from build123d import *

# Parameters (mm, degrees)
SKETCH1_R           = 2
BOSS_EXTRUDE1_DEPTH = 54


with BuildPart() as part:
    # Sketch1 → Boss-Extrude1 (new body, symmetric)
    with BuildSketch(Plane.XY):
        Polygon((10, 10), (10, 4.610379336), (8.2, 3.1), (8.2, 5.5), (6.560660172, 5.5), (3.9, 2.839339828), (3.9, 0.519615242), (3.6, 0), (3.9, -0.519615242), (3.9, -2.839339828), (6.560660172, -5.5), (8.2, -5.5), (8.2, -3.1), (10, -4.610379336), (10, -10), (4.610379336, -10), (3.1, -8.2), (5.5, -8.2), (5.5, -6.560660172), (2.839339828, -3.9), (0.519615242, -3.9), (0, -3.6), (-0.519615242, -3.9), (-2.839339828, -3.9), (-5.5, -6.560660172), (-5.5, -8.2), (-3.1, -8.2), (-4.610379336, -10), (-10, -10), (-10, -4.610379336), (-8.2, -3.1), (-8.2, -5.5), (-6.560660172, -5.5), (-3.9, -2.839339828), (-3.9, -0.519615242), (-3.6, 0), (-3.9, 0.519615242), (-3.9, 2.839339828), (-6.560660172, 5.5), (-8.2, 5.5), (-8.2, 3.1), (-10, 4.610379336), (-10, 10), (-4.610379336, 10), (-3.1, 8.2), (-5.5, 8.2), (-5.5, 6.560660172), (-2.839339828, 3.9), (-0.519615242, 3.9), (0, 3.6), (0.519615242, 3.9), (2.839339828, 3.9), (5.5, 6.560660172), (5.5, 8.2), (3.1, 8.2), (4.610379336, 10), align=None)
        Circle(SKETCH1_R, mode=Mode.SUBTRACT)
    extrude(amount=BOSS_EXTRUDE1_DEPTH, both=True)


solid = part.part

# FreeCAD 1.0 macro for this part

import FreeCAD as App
import Part
import Sketcher
from FreeCAD import Vector
Q = App.Units.Quantity

doc = App.newDocument("Part")
params = doc.addObject("Spreadsheet::Sheet", "Params")
for row, (alias, value) in enumerate([
    ("sketch1_diameter", "4 mm"),
    ("sketch1_width", "2.4 mm"),
    ("sketch1_length", "0.6 mm"),
    ("pad1_length", "108 mm"),
], start=1):
    params.set(f"A{row}", alias)
    params.set(f"B{row}", "=" + value)
    params.setAlias(f"B{row}", alias)

body = doc.addObject("PartDesign::Body", "Body")

sketch1 = doc.addObject("Sketcher::SketchObject", "Sketch")
body.addObject(sketch1)
sketch1.AttachmentSupport = (doc.XY_Plane, [""])
sketch1.MapMode = "FlatFace"
sketch1.addGeometry([
    Part.LineSegment(Vector(10, 4.6, 0), Vector(10, 10, 0)),
    Part.LineSegment(Vector(10, 10, 0), Vector(4.6, 10, 0)),
    Part.LineSegment(Vector(4.6, 10, 0), Vector(3.1, 8.2, 0)),
    Part.LineSegment(Vector(3.1, 8.2, 0), Vector(5.5, 8.2, 0)),
    Part.LineSegment(Vector(5.5, 8.2, 0), Vector(5.5, 6.6, 0)),
    Part.LineSegment(Vector(5.5, 6.6, 0), Vector(2.8, 3.9, 0)),
    Part.LineSegment(Vector(2.8, 3.9, 0), Vector(0.5, 3.9, 0)),
    Part.LineSegment(Vector(0.5, 3.9, 0), Vector(0, 3.6, 0)),
    Part.LineSegment(Vector(0, 3.6, 0), Vector(-0.5, 3.9, 0)),
    Part.LineSegment(Vector(-0.5, 3.9, 0), Vector(-2.8, 3.9, 0)),
    Part.LineSegment(Vector(-2.8, 3.9, 0), Vector(-5.5, 6.6, 0)),
    Part.LineSegment(Vector(-5.5, 6.6, 0), Vector(-5.5, 8.2, 0)),
    Part.LineSegment(Vector(-5.5, 8.2, 0), Vector(-3.1, 8.2, 0)),
    Part.LineSegment(Vector(-3.1, 8.2, 0), Vector(-4.6, 10, 0)),
    Part.LineSegment(Vector(-4.6, 10, 0), Vector(-10, 10, 0)),
    Part.LineSegment(Vector(-10, 10, 0), Vector(-10, 4.6, 0)),
    Part.LineSegment(Vector(-10, 4.6, 0), Vector(-8.2, 3.1, 0)),
    Part.LineSegment(Vector(-8.2, 3.1, 0), Vector(-8.2, 5.5, 0)),
    Part.LineSegment(Vector(-8.2, 5.5, 0), Vector(-6.6, 5.5, 0)),
    Part.LineSegment(Vector(-6.6, 5.5, 0), Vector(-3.9, 2.8, 0)),
    Part.LineSegment(Vector(-3.9, 2.8, 0), Vector(-3.9, 0.5, 0)),
    Part.LineSegment(Vector(-3.9, 0.5, 0), Vector(-3.6, 0, 0)),
    Part.LineSegment(Vector(-3.6, 0, 0), Vector(-3.9, -0.5, 0)),
    Part.LineSegment(Vector(-3.9, -0.5, 0), Vector(-3.9, -2.8, 0)),
    Part.LineSegment(Vector(-3.9, -2.8, 0), Vector(-6.6, -5.5, 0)),
    Part.LineSegment(Vector(-6.6, -5.5, 0), Vector(-8.2, -5.5, 0)),
    Part.LineSegment(Vector(-8.2, -5.5, 0), Vector(-8.2, -3.1, 0)),
    Part.LineSegment(Vector(-8.2, -3.1, 0), Vector(-10, -4.6, 0)),
    Part.LineSegment(Vector(-10, -4.6, 0), Vector(-10, -10, 0)),
    Part.LineSegment(Vector(-10, -10, 0), Vector(-4.6, -10, 0)),
    Part.LineSegment(Vector(-4.6, -10, 0), Vector(-3.1, -8.2, 0)),
    Part.LineSegment(Vector(-3.1, -8.2, 0), Vector(-5.5, -8.2, 0)),
    Part.LineSegment(Vector(-5.5, -8.2, 0), Vector(-5.5, -6.6, 0)),
    Part.LineSegment(Vector(-5.5, -6.6, 0), Vector(-2.8, -3.9, 0)),
    Part.LineSegment(Vector(-2.8, -3.9, 0), Vector(-0.5, -3.9, 0)),
    Part.LineSegment(Vector(-0.5, -3.9, 0), Vector(0, -3.6, 0)),
    Part.LineSegment(Vector(0, -3.6, 0), Vector(0.5, -3.9, 0)),
    Part.LineSegment(Vector(0.5, -3.9, 0), Vector(2.8, -3.9, 0)),
    Part.LineSegment(Vector(2.8, -3.9, 0), Vector(5.5, -6.6, 0)),
    Part.LineSegment(Vector(5.5, -6.6, 0), Vector(5.5, -8.2, 0)),
    Part.LineSegment(Vector(5.5, -8.2, 0), Vector(3.1, -8.2, 0)),
    Part.LineSegment(Vector(3.1, -8.2, 0), Vector(4.6, -10, 0)),
    Part.LineSegment(Vector(4.6, -10, 0), Vector(10, -10, 0)),
    Part.LineSegment(Vector(10, -10, 0), Vector(10, -4.6, 0)),
    Part.LineSegment(Vector(10, -4.6, 0), Vector(8.2, -3.1, 0)),
    Part.LineSegment(Vector(8.2, -3.1, 0), Vector(8.2, -5.5, 0)),
    Part.LineSegment(Vector(8.2, -5.5, 0), Vector(6.6, -5.5, 0)),
    Part.LineSegment(Vector(6.6, -5.5, 0), Vector(3.9, -2.8, 0)),
    Part.LineSegment(Vector(3.9, -2.8, 0), Vector(3.9, -0.5, 0)),
    Part.LineSegment(Vector(3.9, -0.5, 0), Vector(3.6, 0, 0)),
    Part.LineSegment(Vector(3.6, 0, 0), Vector(3.9, 0.5, 0)),
    Part.LineSegment(Vector(3.9, 0.5, 0), Vector(3.9, 2.8, 0)),
    Part.LineSegment(Vector(3.9, 2.8, 0), Vector(6.6, 5.5, 0)),
    Part.LineSegment(Vector(6.6, 5.5, 0), Vector(8.2, 5.5, 0)),
    Part.LineSegment(Vector(8.2, 5.5, 0), Vector(8.2, 3.1, 0)),
    Part.LineSegment(Vector(8.2, 3.1, 0), Vector(10, 4.6, 0)),
    Part.Circle(Vector(0, 0, 0), Vector(0, 0, 1), 2),
], False)
sketch1.addConstraint([
    Sketcher.Constraint("Coincident", 0, 2, 1, 1),
    Sketcher.Constraint("Coincident", 1, 2, 2, 1),
    Sketcher.Constraint("Coincident", 2, 2, 3, 1),
    Sketcher.Constraint("Coincident", 3, 2, 4, 1),
    Sketcher.Constraint("Coincident", 4, 2, 5, 1),
    Sketcher.Constraint("Coincident", 5, 2, 6, 1),
    Sketcher.Constraint("Coincident", 6, 2, 7, 1),
    Sketcher.Constraint("Coincident", 7, 2, 8, 1),
    Sketcher.Constraint("Coincident", 8, 2, 9, 1),
    Sketcher.Constraint("Coincident", 9, 2, 10, 1),
    Sketcher.Constraint("Coincident", 10, 2, 11, 1),
    Sketcher.Constraint("Coincident", 11, 2, 12, 1),
    Sketcher.Constraint("Coincident", 12, 2, 13, 1),
    Sketcher.Constraint("Coincident", 13, 2, 14, 1),
    Sketcher.Constraint("Coincident", 14, 2, 15, 1),
    Sketcher.Constraint("Coincident", 15, 2, 16, 1),
    Sketcher.Constraint("Coincident", 16, 2, 17, 1),
    Sketcher.Constraint("Coincident", 17, 2, 18, 1),
    Sketcher.Constraint("Coincident", 18, 2, 19, 1),
    Sketcher.Constraint("Coincident", 19, 2, 20, 1),
    Sketcher.Constraint("Coincident", 20, 2, 21, 1),
    Sketcher.Constraint("Coincident", 21, 2, 22, 1),
    Sketcher.Constraint("Coincident", 22, 2, 23, 1),
    Sketcher.Constraint("Coincident", 23, 2, 24, 1),
    Sketcher.Constraint("Coincident", 24, 2, 25, 1),
    Sketcher.Constraint("Coincident", 25, 2, 26, 1),
    Sketcher.Constraint("Coincident", 26, 2, 27, 1),
    Sketcher.Constraint("Coincident", 27, 2, 28, 1),
    Sketcher.Constraint("Coincident", 28, 2, 29, 1),
    Sketcher.Constraint("Coincident", 29, 2, 30, 1),
    Sketcher.Constraint("Coincident", 30, 2, 31, 1),
    Sketcher.Constraint("Coincident", 31, 2, 32, 1),
    Sketcher.Constraint("Coincident", 32, 2, 33, 1),
    Sketcher.Constraint("Coincident", 33, 2, 34, 1),
    Sketcher.Constraint("Coincident", 34, 2, 35, 1),
    Sketcher.Constraint("Coincident", 35, 2, 36, 1),
    Sketcher.Constraint("Coincident", 36, 2, 37, 1),
    Sketcher.Constraint("Coincident", 37, 2, 38, 1),
    Sketcher.Constraint("Coincident", 38, 2, 39, 1),
    Sketcher.Constraint("Coincident", 39, 2, 40, 1),
    Sketcher.Constraint("Coincident", 40, 2, 41, 1),
    Sketcher.Constraint("Coincident", 41, 2, 42, 1),
    Sketcher.Constraint("Coincident", 42, 2, 43, 1),
    Sketcher.Constraint("Coincident", 43, 2, 44, 1),
    Sketcher.Constraint("Coincident", 44, 2, 45, 1),
    Sketcher.Constraint("Coincident", 45, 2, 46, 1),
    Sketcher.Constraint("Coincident", 46, 2, 47, 1),
    Sketcher.Constraint("Coincident", 47, 2, 48, 1),
    Sketcher.Constraint("Coincident", 48, 2, 49, 1),
    Sketcher.Constraint("Coincident", 49, 2, 50, 1),
    Sketcher.Constraint("Coincident", 50, 2, 51, 1),
    Sketcher.Constraint("Coincident", 51, 2, 52, 1),
    Sketcher.Constraint("Coincident", 52, 2, 53, 1),
    Sketcher.Constraint("Coincident", 53, 2, 54, 1),
    Sketcher.Constraint("Coincident", 54, 2, 55, 1),
    Sketcher.Constraint("Coincident", 55, 2, 0, 1),
    Sketcher.Constraint("Vertical", 0),
    Sketcher.Constraint("Horizontal", 1),
    Sketcher.Constraint("Horizontal", 3),
    Sketcher.Constraint("Vertical", 4),
    Sketcher.Constraint("Horizontal", 6),
    Sketcher.Constraint("Horizontal", 9),
    Sketcher.Constraint("Vertical", 11),
    Sketcher.Constraint("Horizontal", 12),
    Sketcher.Constraint("Horizontal", 14),
    Sketcher.Constraint("Vertical", 15),
    Sketcher.Constraint("Vertical", 17),
    Sketcher.Constraint("Horizontal", 18),
    Sketcher.Constraint("Vertical", 20),
    Sketcher.Constraint("Vertical", 23),
    Sketcher.Constraint("Horizontal", 25),
    Sketcher.Constraint("Vertical", 26),
    Sketcher.Constraint("Vertical", 28),
    Sketcher.Constraint("Horizontal", 29),
    Sketcher.Constraint("Horizontal", 31),
    Sketcher.Constraint("Vertical", 32),
    Sketcher.Constraint("Horizontal", 34),
    Sketcher.Constraint("Horizontal", 37),
    Sketcher.Constraint("Vertical", 39),
    Sketcher.Constraint("Horizontal", 40),
    Sketcher.Constraint("Horizontal", 42),
    Sketcher.Constraint("Vertical", 43),
    Sketcher.Constraint("Vertical", 45),
    Sketcher.Constraint("Horizontal", 46),
    Sketcher.Constraint("Vertical", 48),
    Sketcher.Constraint("Vertical", 51),
    Sketcher.Constraint("Horizontal", 53),
    Sketcher.Constraint("Vertical", 54),
    Sketcher.Constraint("Coincident", 56, 3, -1, 1),
    Sketcher.Constraint("Symmetric", 0, 2, 28, 2, -1, 1),
    Sketcher.Constraint("Symmetric", 2, 2, 30, 2, -1, 1),
    Sketcher.Constraint("Symmetric", 4, 2, 32, 2, -1, 1),
    Sketcher.Constraint("Symmetric", 5, 2, 33, 2, -1, 1),
    Sketcher.Constraint("Symmetric", 7, 2, 35, 2, -1, 1),
    Sketcher.Constraint("Symmetric", 8, 2, 36, 2, -1, 1),
    Sketcher.Constraint("Symmetric", 10, 2, 38, 2, -1, 1),
    Sketcher.Constraint("Symmetric", 12, 2, 40, 2, -1, 1),
    Sketcher.Constraint("Symmetric", 13, 2, 41, 2, -1, 1),
    Sketcher.Constraint("Symmetric", 15, 2, 43, 2, -1, 1),
    Sketcher.Constraint("Symmetric", 16, 2, 44, 2, -1, 1),
    Sketcher.Constraint("Symmetric", 18, 2, 46, 2, -1, 1),
    Sketcher.Constraint("Symmetric", 19, 2, 47, 2, -1, 1),
    Sketcher.Constraint("Symmetric", 21, 2, 49, 2, -1, 1),
    Sketcher.Constraint("Symmetric", 22, 2, 50, 2, -1, 1),
    Sketcher.Constraint("Symmetric", 24, 2, 52, 2, -1, 1),
    Sketcher.Constraint("Symmetric", 26, 2, 54, 2, -1, 1),
    Sketcher.Constraint("Symmetric", 6, 2, 8, 2, -2),
    Sketcher.Constraint("Symmetric", 4, 2, 10, 2, -2),
    Sketcher.Constraint("Symmetric", 2, 2, 12, 2, -2),
    Sketcher.Constraint("Symmetric", 1, 2, 13, 2, -2),
    Sketcher.Constraint("Symmetric", 27, 2, 43, 2, -2),
    Sketcher.Constraint("Symmetric", 26, 2, 44, 2, -2),
    Sketcher.Constraint("Symmetric", 24, 2, 46, 2, -2),
    Sketcher.Constraint("Symmetric", 23, 2, 47, 2, -2),
    Sketcher.Constraint("PointOnObject", 7, 2, -2),
    Sketcher.Constraint("PointOnObject", 21, 2, -1),
    Sketcher.Constraint("Perpendicular", 5, 10),
    Sketcher.Constraint("Perpendicular", 2, 16),
    Sketcher.Constraint("Parallel", 10, 19),
    Sketcher.Constraint("Perpendicular", 7, 21),
    Sketcher.Constraint("Perpendicular", 8, 22),
    Sketcher.Constraint("Perpendicular", 19, 24),
    Sketcher.Constraint("Perpendicular", 16, 30),
    Sketcher.Constraint("Perpendicular", 21, 35),
    Sketcher.Constraint("Perpendicular", 33, 38),
    Sketcher.Constraint("Perpendicular", 35, 49),
    Sketcher.Constraint("Perpendicular", 47, 52),
    Sketcher.Constraint("Perpendicular", 41, 55),
    Sketcher.Constraint("Equal", 42, 0),
    Sketcher.Constraint("Equal", 53, 4),
    Sketcher.Constraint("Equal", 40, 17),
    Sketcher.Constraint("Equal", 37, 20),
    Sketcher.Constraint("Equal", 13, 16),
    Sketcher.Constraint("Equal", 10, 19),
    Sketcher.Constraint("Equal", 8, 21),
    Sketcher.Constraint("Diameter", 56, Q("4 mm")),
    Sketcher.Constraint("Angle", 2, Q("-130 deg")),
    Sketcher.Constraint("Angle", 7, Q("-150 deg")),
    Sketcher.Constraint("DistanceX", 3, 1, 3, 2, Q("2.4 mm")),
    Sketcher.Constraint("DistanceX", -1, 1, 0, 2, Q("10 mm")),
    Sketcher.Constraint("Distance", 7, Q("0.6 mm")),
    Sketcher.Constraint("DistanceX", -1, 1, 2, 2, Q("3.1 mm")),
    Sketcher.Constraint("DistanceY", -1, 1, 2, 2, Q("8.2 mm")),
    Sketcher.Constraint("DistanceY", -1, 1, 5, 2, Q("3.9 mm")),
    Sketcher.Constraint("DistanceX", 18, 1, 18, 2, Q("1.63934 mm")),
])
sketch1.setExpression("Constraints[135]", "Params.sketch1_diameter")
sketch1.setExpression("Constraints[138]", "Params.sketch1_width")
sketch1.setExpression("Constraints[140]", "Params.sketch1_length")
pad1 = doc.addObject("PartDesign::Pad", "Pad")
body.addObject(pad1)
pad1.Profile = sketch1
pad1.setExpression("Length", "Params.pad1_length")
pad1.Midplane = True

doc.recompute()
